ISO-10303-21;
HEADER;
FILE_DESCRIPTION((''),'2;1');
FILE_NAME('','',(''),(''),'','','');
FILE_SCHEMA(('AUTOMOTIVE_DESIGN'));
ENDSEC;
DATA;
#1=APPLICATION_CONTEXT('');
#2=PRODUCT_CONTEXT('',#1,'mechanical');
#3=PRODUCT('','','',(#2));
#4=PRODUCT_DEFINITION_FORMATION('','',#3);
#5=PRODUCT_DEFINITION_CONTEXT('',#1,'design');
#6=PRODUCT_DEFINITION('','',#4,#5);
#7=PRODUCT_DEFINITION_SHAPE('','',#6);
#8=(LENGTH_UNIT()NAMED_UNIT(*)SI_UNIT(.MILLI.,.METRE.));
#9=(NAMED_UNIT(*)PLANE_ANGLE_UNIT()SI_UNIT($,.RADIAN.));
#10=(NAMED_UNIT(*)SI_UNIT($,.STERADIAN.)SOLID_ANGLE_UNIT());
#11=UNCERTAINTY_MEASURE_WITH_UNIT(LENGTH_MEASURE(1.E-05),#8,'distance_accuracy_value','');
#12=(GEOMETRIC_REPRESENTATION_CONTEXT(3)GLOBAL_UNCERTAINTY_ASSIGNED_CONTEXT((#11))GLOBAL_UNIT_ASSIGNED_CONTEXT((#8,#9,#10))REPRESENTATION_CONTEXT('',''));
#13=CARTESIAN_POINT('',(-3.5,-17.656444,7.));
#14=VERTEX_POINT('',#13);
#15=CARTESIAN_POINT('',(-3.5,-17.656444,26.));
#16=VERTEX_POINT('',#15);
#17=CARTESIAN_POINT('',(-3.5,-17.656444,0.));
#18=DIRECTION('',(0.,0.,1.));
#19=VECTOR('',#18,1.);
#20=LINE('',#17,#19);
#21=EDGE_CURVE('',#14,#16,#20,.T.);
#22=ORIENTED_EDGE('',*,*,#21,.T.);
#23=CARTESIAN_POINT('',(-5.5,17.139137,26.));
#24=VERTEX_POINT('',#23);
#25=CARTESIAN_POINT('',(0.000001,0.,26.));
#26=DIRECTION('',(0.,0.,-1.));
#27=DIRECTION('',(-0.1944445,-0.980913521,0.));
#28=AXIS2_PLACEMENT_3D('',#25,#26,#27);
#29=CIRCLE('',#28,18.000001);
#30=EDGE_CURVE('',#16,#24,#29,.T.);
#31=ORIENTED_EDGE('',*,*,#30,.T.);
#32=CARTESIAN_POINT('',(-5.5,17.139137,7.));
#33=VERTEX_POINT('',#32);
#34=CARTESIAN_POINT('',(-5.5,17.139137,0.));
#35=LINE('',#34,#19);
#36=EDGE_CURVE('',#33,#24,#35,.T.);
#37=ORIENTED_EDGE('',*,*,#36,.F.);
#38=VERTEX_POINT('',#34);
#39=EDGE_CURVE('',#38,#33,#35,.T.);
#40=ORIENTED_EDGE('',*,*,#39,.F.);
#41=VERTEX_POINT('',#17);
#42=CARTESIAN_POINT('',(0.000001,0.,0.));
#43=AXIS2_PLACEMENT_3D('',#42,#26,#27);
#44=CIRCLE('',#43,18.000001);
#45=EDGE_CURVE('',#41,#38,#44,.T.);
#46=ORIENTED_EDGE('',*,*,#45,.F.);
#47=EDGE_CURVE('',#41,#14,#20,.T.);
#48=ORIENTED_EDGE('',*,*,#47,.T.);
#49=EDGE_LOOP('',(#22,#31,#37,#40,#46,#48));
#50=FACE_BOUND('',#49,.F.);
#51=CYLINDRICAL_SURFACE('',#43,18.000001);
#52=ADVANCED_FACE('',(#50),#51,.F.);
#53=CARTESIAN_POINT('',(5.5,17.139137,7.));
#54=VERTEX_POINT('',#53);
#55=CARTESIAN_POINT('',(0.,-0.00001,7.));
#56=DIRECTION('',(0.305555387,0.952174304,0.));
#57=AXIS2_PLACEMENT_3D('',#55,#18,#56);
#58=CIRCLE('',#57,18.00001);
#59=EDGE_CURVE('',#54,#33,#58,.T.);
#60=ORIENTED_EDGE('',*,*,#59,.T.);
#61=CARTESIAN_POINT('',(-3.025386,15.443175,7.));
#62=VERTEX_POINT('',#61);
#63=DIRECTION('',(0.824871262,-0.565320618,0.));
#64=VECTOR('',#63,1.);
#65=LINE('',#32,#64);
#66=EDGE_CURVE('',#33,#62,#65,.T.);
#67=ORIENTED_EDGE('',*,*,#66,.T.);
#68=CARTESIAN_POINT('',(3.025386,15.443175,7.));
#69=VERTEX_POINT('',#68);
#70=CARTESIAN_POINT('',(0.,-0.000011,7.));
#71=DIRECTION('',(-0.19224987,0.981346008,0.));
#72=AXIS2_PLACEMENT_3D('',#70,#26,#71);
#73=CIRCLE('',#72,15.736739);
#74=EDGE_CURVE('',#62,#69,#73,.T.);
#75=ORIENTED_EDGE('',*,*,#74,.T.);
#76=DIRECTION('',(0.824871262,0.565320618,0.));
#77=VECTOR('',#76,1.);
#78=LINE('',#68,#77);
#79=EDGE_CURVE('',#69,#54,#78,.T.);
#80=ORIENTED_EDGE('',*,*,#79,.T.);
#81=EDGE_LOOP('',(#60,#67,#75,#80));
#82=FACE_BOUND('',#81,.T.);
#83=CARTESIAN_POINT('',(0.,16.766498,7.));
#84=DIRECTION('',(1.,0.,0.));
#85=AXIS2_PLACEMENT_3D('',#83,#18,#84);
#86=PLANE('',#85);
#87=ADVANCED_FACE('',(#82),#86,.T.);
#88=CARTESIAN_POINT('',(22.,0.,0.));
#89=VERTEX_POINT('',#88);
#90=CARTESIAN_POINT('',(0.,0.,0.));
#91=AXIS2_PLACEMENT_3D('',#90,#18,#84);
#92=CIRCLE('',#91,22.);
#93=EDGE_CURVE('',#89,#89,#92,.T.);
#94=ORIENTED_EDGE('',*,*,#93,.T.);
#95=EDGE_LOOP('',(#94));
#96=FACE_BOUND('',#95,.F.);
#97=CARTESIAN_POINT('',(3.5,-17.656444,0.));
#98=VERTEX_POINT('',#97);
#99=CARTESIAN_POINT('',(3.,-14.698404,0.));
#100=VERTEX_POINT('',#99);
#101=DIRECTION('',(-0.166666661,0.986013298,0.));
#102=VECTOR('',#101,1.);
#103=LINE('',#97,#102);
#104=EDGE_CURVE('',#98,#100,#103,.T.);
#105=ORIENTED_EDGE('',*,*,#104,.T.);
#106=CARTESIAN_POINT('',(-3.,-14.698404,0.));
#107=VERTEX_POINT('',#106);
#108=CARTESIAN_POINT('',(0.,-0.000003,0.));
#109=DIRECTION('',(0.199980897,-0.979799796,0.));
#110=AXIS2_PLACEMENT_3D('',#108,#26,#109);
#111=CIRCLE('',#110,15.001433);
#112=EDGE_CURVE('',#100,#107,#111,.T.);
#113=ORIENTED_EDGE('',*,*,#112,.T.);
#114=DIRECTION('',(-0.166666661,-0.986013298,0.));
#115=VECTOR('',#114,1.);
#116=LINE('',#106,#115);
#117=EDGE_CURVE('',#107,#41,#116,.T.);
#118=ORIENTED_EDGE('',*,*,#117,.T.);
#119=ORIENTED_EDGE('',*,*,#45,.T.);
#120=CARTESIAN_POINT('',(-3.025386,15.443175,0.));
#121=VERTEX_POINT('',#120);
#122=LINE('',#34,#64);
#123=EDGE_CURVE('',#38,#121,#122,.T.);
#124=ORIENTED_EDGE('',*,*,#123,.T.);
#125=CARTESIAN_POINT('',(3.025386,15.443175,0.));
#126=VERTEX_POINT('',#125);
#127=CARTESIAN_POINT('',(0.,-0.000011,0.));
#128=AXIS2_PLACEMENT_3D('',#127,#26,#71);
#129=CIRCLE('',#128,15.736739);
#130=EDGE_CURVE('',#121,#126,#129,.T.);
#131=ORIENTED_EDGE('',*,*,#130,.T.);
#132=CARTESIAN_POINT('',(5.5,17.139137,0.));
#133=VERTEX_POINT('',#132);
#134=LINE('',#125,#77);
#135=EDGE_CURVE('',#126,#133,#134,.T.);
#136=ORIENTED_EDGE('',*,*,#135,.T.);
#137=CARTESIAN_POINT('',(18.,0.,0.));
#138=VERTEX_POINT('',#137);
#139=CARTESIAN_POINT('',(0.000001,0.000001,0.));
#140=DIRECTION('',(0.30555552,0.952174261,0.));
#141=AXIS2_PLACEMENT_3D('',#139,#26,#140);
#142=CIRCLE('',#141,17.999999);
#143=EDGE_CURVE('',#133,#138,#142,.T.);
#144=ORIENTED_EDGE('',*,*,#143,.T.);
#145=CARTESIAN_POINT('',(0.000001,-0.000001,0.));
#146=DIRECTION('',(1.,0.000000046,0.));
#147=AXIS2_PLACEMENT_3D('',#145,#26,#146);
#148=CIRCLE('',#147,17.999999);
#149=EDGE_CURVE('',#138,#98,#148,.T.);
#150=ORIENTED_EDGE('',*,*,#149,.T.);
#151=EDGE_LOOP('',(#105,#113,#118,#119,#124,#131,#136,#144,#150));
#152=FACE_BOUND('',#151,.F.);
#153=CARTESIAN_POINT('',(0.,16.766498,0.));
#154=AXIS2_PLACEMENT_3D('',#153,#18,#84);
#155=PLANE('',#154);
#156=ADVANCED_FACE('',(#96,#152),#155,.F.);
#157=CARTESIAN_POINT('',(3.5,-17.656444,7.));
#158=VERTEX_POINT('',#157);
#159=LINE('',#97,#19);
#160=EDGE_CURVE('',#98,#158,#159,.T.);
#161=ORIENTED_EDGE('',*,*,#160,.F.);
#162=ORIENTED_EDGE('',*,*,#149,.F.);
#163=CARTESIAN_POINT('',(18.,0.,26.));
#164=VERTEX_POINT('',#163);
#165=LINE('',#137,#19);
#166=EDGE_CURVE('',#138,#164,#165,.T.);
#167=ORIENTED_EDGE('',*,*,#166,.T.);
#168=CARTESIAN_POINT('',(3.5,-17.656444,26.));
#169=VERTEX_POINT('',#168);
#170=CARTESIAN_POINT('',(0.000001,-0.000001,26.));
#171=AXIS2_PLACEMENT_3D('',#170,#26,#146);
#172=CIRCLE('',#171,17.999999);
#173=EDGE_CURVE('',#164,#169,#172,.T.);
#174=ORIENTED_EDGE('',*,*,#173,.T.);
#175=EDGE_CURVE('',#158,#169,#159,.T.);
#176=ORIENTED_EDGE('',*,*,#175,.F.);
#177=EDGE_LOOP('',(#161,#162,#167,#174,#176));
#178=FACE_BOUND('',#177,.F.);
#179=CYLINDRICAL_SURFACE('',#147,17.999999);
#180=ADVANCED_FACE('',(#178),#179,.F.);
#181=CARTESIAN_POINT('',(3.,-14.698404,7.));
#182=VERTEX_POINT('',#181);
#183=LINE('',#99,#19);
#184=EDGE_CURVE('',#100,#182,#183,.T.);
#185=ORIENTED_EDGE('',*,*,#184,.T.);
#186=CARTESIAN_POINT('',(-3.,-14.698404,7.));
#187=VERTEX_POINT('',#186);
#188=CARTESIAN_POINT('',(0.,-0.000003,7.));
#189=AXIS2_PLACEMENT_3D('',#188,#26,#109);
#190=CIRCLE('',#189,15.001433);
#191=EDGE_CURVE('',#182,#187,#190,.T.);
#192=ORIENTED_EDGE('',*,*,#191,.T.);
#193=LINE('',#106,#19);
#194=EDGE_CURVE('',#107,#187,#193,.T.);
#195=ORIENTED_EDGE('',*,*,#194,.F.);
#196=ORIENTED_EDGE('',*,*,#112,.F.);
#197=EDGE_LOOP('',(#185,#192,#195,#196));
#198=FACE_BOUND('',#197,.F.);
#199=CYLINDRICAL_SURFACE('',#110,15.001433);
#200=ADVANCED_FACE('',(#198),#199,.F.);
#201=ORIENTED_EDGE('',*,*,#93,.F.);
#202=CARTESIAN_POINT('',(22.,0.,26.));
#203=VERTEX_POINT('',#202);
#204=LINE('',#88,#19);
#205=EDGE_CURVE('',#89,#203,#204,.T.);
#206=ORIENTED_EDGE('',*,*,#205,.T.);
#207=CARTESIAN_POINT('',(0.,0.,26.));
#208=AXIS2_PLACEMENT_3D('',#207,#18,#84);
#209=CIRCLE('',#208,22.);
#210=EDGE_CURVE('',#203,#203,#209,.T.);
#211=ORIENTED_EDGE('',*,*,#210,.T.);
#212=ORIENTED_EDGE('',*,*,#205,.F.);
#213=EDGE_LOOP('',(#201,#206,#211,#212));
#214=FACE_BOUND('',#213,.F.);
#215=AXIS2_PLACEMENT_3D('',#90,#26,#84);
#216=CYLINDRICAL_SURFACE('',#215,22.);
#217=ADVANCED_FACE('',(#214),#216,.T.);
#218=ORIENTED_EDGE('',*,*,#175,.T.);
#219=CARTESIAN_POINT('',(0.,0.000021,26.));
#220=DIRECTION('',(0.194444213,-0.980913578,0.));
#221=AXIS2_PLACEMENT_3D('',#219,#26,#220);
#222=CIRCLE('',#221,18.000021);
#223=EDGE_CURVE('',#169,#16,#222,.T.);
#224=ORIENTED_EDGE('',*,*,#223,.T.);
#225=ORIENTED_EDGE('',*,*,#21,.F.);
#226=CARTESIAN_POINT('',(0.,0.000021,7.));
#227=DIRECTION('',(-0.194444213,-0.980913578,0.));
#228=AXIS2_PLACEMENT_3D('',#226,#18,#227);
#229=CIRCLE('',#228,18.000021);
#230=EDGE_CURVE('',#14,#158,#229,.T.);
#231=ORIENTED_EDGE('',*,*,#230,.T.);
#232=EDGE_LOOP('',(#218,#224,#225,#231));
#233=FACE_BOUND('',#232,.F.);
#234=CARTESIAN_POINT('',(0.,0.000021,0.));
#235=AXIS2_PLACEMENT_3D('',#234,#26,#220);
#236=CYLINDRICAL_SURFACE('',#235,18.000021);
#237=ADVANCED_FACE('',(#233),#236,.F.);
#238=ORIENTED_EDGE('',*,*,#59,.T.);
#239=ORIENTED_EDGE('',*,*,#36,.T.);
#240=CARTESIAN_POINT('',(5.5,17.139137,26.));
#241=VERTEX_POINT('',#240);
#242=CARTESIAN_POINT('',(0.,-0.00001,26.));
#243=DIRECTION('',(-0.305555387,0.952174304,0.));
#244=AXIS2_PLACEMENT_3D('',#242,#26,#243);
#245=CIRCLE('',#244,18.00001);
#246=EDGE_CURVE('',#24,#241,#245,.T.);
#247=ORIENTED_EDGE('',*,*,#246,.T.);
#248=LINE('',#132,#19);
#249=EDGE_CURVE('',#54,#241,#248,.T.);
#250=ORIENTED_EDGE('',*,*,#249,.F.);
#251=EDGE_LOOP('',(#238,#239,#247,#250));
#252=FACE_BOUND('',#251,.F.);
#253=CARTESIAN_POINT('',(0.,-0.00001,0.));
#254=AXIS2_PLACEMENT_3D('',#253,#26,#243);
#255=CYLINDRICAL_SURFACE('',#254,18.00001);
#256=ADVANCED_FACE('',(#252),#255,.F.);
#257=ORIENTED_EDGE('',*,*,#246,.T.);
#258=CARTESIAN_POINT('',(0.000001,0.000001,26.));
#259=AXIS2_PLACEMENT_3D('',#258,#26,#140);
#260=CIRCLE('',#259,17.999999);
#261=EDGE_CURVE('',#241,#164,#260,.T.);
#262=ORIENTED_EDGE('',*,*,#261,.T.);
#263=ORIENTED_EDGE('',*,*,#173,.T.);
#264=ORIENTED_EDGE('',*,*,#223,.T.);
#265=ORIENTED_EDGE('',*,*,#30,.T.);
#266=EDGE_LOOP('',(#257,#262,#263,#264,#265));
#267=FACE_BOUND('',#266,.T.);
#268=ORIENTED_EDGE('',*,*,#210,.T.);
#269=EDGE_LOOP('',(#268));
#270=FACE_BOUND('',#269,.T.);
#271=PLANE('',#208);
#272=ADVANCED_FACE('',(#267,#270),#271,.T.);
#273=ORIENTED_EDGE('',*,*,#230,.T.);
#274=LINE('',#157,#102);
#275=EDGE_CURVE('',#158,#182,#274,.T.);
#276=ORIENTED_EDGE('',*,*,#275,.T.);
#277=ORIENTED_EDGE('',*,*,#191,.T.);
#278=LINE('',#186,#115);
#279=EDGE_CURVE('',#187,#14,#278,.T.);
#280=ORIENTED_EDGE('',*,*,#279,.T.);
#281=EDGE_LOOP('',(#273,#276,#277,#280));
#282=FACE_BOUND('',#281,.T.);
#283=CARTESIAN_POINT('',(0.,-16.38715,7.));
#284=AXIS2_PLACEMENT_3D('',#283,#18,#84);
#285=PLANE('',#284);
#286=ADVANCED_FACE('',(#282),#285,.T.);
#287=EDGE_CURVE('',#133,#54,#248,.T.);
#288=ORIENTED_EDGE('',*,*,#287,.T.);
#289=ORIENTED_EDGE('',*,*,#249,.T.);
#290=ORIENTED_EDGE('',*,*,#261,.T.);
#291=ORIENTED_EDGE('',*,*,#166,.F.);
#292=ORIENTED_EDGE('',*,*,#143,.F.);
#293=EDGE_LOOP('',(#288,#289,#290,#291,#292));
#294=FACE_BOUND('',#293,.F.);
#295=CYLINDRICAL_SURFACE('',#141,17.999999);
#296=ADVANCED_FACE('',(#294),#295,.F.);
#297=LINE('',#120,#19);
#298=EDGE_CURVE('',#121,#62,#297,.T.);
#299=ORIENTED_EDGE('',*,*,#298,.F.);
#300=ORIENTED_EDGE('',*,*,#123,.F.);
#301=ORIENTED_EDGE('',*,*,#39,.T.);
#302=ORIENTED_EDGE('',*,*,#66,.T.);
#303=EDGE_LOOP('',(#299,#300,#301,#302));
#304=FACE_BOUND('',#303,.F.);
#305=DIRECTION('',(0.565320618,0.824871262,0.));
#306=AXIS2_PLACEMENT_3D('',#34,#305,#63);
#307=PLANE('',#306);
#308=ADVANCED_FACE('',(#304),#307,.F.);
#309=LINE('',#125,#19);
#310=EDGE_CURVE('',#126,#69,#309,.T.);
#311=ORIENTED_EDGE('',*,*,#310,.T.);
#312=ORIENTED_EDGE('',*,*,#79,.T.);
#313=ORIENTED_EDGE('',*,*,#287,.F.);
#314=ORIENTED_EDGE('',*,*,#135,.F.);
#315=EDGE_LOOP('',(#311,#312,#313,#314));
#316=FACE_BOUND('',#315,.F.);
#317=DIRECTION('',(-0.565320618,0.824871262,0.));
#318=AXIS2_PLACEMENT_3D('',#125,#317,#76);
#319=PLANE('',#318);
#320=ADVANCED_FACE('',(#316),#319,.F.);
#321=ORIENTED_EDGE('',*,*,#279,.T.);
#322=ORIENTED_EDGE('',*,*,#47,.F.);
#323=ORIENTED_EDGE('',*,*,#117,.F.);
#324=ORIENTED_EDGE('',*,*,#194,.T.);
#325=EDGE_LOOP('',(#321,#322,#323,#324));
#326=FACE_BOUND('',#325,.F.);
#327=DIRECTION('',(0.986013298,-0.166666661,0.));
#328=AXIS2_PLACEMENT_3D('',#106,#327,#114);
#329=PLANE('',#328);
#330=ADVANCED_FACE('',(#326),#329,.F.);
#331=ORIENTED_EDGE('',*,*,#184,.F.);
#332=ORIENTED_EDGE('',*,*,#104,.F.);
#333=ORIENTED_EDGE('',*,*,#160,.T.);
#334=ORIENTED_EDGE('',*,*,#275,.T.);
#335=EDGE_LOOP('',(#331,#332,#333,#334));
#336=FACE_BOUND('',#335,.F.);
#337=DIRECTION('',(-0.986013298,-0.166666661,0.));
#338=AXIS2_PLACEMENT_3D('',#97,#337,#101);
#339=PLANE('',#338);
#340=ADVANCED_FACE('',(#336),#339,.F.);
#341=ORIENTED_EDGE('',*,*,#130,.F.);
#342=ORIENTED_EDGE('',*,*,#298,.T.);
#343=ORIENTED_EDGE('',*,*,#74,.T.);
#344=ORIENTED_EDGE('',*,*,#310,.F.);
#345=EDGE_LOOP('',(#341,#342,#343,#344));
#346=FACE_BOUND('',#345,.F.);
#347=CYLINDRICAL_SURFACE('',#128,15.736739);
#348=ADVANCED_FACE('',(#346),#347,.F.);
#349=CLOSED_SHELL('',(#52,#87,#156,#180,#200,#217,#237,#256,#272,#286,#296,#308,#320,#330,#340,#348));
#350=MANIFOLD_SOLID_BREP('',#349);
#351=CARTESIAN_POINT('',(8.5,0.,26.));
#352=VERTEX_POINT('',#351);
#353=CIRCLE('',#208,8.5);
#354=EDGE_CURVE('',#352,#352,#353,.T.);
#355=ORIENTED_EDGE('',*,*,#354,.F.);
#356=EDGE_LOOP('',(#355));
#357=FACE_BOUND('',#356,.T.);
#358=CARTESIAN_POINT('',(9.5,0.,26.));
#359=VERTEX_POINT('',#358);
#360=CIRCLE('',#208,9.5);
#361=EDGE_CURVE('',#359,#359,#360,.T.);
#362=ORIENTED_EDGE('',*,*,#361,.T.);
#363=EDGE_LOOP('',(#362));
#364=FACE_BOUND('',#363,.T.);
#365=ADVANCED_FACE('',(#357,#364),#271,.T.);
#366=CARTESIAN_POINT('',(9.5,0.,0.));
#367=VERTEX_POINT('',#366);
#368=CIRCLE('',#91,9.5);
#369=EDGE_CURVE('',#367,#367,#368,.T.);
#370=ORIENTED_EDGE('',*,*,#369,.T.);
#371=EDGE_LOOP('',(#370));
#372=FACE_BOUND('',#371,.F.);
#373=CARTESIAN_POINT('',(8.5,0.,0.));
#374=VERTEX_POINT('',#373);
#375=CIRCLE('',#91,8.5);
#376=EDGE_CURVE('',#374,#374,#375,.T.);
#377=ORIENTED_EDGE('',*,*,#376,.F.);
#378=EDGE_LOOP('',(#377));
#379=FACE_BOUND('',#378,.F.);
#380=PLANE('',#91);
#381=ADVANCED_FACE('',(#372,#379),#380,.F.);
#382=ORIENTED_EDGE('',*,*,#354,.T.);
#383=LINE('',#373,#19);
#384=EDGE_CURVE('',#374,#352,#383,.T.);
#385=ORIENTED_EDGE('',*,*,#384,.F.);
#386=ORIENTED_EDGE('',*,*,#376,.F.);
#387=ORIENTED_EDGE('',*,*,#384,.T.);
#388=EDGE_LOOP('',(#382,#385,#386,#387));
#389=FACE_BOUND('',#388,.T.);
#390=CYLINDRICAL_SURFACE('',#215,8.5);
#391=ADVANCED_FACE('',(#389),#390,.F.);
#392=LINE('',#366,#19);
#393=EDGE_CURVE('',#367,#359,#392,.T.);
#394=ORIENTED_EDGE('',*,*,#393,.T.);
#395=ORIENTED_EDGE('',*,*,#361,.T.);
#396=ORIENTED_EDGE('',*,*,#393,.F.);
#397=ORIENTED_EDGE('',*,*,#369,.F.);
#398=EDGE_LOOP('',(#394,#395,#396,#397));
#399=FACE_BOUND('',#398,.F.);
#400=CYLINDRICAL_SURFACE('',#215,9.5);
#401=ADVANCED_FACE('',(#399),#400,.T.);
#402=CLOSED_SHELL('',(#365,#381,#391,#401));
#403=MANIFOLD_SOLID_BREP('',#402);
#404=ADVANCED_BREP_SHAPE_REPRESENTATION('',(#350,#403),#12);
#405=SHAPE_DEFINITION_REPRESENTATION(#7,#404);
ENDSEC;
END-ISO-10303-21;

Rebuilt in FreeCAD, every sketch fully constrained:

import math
import FreeCAD as App
import Part
import Sketcher

V = App.Vector

doc = App.newDocument("Part")
body = doc.addObject("PartDesign::Body", "Body")
body.AllowCompound = True

sketch1 = doc.addObject("Sketcher::SketchObject", "Sketch")
body.addObject(sketch1)
sketch1.AttachmentSupport = (doc.XY_Plane, [""])
sketch1.MapMode = "FlatFace"
sketch1.addGeometry([
    Part.Circle(V(0, 0, 0), V(0, 0, 1), 22),
    Part.ArcOfCircle(Part.Circle(V(0, -0.00001, 0), V(0, 0, 1), 18.00001), math.radians(72.20842), math.radians(107.79158)),
    Part.ArcOfCircle(Part.Circle(V(0.000001, 0.000001, 0), V(0, 0, 1), 17.999999), math.radians(-0.000004), math.radians(72.208412)),
    Part.ArcOfCircle(Part.Circle(V(0.000001, -0.000001, 0), V(0, 0, 1), 17.999999), math.radians(-78.78773), math.radians(0.000003)),
    Part.ArcOfCircle(Part.Circle(V(0, 0.000021, 0), V(0, 0, 1), 18.000021), math.radians(-101.212258), math.radians(-78.787742)),
    Part.ArcOfCircle(Part.Circle(V(0.000001, 0, 0), V(0, 0, 1), 18.000001), math.radians(107.791594), math.radians(258.787725)),
    Part.Circle(V(0, 0, 0), V(0, 0, 1), 9.5),
    Part.Circle(V(0, 0, 0), V(0, 0, 1), 8.5),
], False)
sketch1.addConstraint([
    Sketcher.Constraint("Coincident", 1, 1, 2, 2),
    Sketcher.Constraint("Coincident", 2, 1, 3, 2),
    Sketcher.Constraint("Coincident", 3, 1, 4, 2),
    Sketcher.Constraint("Coincident", 4, 1, 5, 2),
    Sketcher.Constraint("Coincident", 5, 1, 1, 2),
    Sketcher.Constraint("Coincident", 0, 3, -1, 1),
    Sketcher.Constraint("Coincident", 1, 3, -1, 1),
    Sketcher.Constraint("Coincident", 2, 3, -1, 1),
    Sketcher.Constraint("Coincident", 3, 3, -1, 1),
    Sketcher.Constraint("Coincident", 5, 3, -1, 1),
    Sketcher.Constraint("Coincident", 6, 3, -1, 1),
    Sketcher.Constraint("Coincident", 7, 3, -1, 1),
    Sketcher.Constraint("PointOnObject", 2, 1, -1),
    Sketcher.Constraint("Diameter", 0, 44.0),
    Sketcher.Constraint("Diameter", 6, 19.0),
    Sketcher.Constraint("Diameter", 7, 17.0),
    Sketcher.Constraint("Radius", 2, 17.999999),
    Sketcher.Constraint("DistanceX", 4, 1, 3, 1, 7.0),
    Sketcher.Constraint("DistanceX", 5, 1, 1, 1, 11.0),
    Sketcher.Constraint("DistanceX", -1, 1, 1, 1, 5.5),
    Sketcher.Constraint("DistanceX", -1, 1, 3, 1, 3.5),
    Sketcher.Constraint("Radius", 4, 18.000021),
])
pad1 = doc.addObject("PartDesign::Pad", "Pad")
body.addObject(pad1)
pad1.Profile = sketch1
pad1.Length = 26

sketch2 = doc.addObject("Sketcher::SketchObject", "Sketch001")
body.addObject(sketch2)
sketch2.AttachmentSupport = (doc.XY_Plane, [""])
sketch2.MapMode = "FlatFace"
sketch2.addGeometry([
    Part.LineSegment(V(3, 15.4, 0), V(5.5, 17.1, 0)),
    Part.ArcOfCircle(Part.Circle(V(0, 0, 0), V(0, 0, 1), 18), math.radians(72), math.radians(108)),
    Part.LineSegment(V(-5.5, 17.1, 0), V(-3, 15.4, 0)),
    Part.ArcOfCircle(Part.Circle(V(0, 0, 0), V(0, 0, 1), 15.7), math.radians(79), math.radians(101)),
    Part.ArcOfCircle(Part.Circle(V(0, 0, 0), V(0, 0, 1), 18), math.radians(-101), math.radians(-79)),
    Part.LineSegment(V(3.5, -17.7, 0), V(3, -14.7, 0)),
    Part.ArcOfCircle(Part.Circle(V(0, 0, 0), V(0, 0, 1), 15), math.radians(-102), math.radians(-78)),
    Part.LineSegment(V(-3, -14.7, 0), V(-3.5, -17.7, 0)),
], False)
sketch2.addConstraint([
    Sketcher.Constraint("Coincident", 0, 2, 1, 1),
    Sketcher.Constraint("Coincident", 1, 2, 2, 1),
    Sketcher.Constraint("Coincident", 2, 2, 3, 2),
    Sketcher.Constraint("Coincident", 3, 1, 0, 1),
    Sketcher.Constraint("Coincident", 4, 2, 5, 1),
    Sketcher.Constraint("Coincident", 5, 2, 6, 2),
    Sketcher.Constraint("Coincident", 6, 1, 7, 1),
    Sketcher.Constraint("Coincident", 7, 2, 4, 1),
    Sketcher.Constraint("Coincident", 1, 3, -1, 1),
    Sketcher.Constraint("Coincident", 6, 3, -1, 1),
    Sketcher.Constraint("Coincident", 3, 3, 1, 3),
    Sketcher.Constraint("Symmetric", 4, 2, 7, 2, -2),
    Sketcher.Constraint("Horizontal", 0, 2, 1, 2),
    Sketcher.Constraint("Horizontal", 2, 2, 3, 1),
    Sketcher.Constraint("Horizontal", 5, 2, 6, 1),
    Sketcher.Constraint("Equal", 2, 5),
    Sketcher.Constraint("Distance", 0, 3.0),
    Sketcher.Constraint("DistanceX", -1, 1, 5, 2, 3.0),
    Sketcher.Constraint("DistanceX", 1, 2, 0, 2, 11.0),
    Sketcher.Constraint("DistanceX", 7, 2, 4, 2, 7.0),
    Sketcher.Constraint("Radius", 1, 18.00001),
    Sketcher.Constraint("Radius", 3, 15.736739),
    Sketcher.Constraint("Radius", 4, 18.000021),
    Sketcher.Constraint("Radius", 6, 15.001433),
])
pad2 = doc.addObject("PartDesign::Pad", "Pad001")
body.addObject(pad2)
pad2.Profile = sketch2
pad2.Length = 7

doc.recompute()
